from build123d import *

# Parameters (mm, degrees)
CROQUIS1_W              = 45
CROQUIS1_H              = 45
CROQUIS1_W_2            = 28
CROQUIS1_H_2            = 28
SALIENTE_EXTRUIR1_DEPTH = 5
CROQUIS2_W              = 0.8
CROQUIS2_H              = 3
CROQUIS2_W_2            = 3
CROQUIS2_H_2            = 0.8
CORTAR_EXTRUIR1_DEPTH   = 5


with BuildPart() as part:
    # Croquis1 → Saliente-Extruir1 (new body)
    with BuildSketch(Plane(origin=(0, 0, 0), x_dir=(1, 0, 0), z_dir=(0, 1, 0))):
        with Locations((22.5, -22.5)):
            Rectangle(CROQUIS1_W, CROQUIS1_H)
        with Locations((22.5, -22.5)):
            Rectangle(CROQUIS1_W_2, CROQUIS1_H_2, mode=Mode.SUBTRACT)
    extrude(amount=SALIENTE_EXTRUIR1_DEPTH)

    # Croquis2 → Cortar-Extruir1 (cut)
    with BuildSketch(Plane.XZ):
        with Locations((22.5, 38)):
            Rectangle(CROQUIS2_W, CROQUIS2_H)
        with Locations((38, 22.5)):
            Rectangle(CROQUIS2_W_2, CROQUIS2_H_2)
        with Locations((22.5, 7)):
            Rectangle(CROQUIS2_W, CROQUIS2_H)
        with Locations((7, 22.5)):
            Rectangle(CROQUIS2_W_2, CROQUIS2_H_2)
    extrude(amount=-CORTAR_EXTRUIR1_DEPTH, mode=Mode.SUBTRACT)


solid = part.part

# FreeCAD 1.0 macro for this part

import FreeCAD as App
import Part
import Sketcher

V = App.Vector
Q = App.Units.Quantity


def add_polygon(sketch, points):
    """Adds a closed chain of lines whose ends are joined by coincident constraints."""
    first, n = sketch.GeometryCount, len(points)
    for a, b in zip(points, points[1:] + points[:1]):
        sketch.addGeometry(Part.LineSegment(App.Vector(*a, 0), App.Vector(*b, 0)), False)
    for i in range(n):
        sketch.addConstraint(Sketcher.Constraint("Coincident", first + i, 2, first + (i + 1) % n, 1))

doc = App.newDocument("Part")
body = doc.addObject("PartDesign::Body", "Body")

sketch1 = doc.addObject("Sketcher::SketchObject", "Sketch")
body.addObject(sketch1)
sketch1.AttachmentSupport = (doc.XZ_Plane, [""])
sketch1.MapMode = "FlatFace"
add_polygon(sketch1, [(0, 0), (0, 45), (45, 45), (45, 0)])
add_polygon(sketch1, [(36.5, 36.5), (8.5, 36.5), (8.5, 8.5), (36.5, 8.5)])
sketch1.addConstraint([
    Sketcher.Constraint("Vertical", 0),
    Sketcher.Constraint("Horizontal", 1),
    Sketcher.Constraint("Vertical", 2),
    Sketcher.Constraint("Horizontal", 3),
    Sketcher.Constraint("Horizontal", 4),
    Sketcher.Constraint("Vertical", 5),
    Sketcher.Constraint("Horizontal", 6),
    Sketcher.Constraint("Vertical", 7),
    Sketcher.Constraint("Coincident", 3, 2, -1, 1),
    Sketcher.Constraint("Equal", 3, 0),
    Sketcher.Constraint("Equal", 6, 5),
    Sketcher.Constraint("DistanceX", 1, 1, 1, 2, Q("45 mm")),
    Sketcher.Constraint("DistanceX", 4, 2, 4, 1, Q("28 mm")),
    Sketcher.Constraint("DistanceX", -1, 1, 4, 2, Q("8.5 mm")),
    Sketcher.Constraint("DistanceY", -1, 1, 4, 2, Q("36.5 mm")),
])
pad1 = doc.addObject("PartDesign::Pad", "Pad")
body.addObject(pad1)
pad1.Profile = sketch1
pad1.Length = 5
pad1.Reversed = True

sketch2 = doc.addObject("Sketcher::SketchObject", "Sketch001")
body.addObject(sketch2)
sketch2.AttachmentSupport = (doc.XZ_Plane, [""])
sketch2.MapMode = "FlatFace"
add_polygon(sketch2, [(22.1, 39.5), (22.1, 36.5), (22.9, 36.5), (22.9, 39.5)])
add_polygon(sketch2, [(36.5, 22.9), (36.5, 22.1), (39.5, 22.1), (39.5, 22.9)])
add_polygon(sketch2, [(22.1, 8.5), (22.1, 5.5), (22.9, 5.5), (22.9, 8.5)])
add_polygon(sketch2, [(5.5, 22.9), (5.5, 22.1), (8.5, 22.1), (8.5, 22.9)])
sketch2.addConstraint([
    Sketcher.Constraint("Vertical", 0),
    Sketcher.Constraint("Horizontal", 1),
    Sketcher.Constraint("Vertical", 2),
    Sketcher.Constraint("Horizontal", 3),
    Sketcher.Constraint("Vertical", 4),
    Sketcher.Constraint("Horizontal", 5),
    Sketcher.Constraint("Vertical", 6),
    Sketcher.Constraint("Horizontal", 7),
    Sketcher.Constraint("Vertical", 8),
    Sketcher.Constraint("Horizontal", 9),
    Sketcher.Constraint("Vertical", 10),
    Sketcher.Constraint("Horizontal", 11),
    Sketcher.Constraint("Vertical", 12),
    Sketcher.Constraint("Horizontal", 13),
    Sketcher.Constraint("Vertical", 14),
    Sketcher.Constraint("Horizontal", 15),
    Sketcher.Constraint("Horizontal", 5, 2, 12, 2),
    Sketcher.Constraint("Horizontal", 7, 2, 14, 2),
    Sketcher.Constraint("Vertical", 3, 2, 8, 2),
    Sketcher.Constraint("Vertical", 2, 2, 9, 2),
    Sketcher.Constraint("Equal", 7, 13),
    Sketcher.Constraint("Equal", 15, 0),
    Sketcher.Constraint("Equal", 11, 4),
    Sketcher.Constraint("Equal", 2, 8),
    Sketcher.Constraint("DistanceX", 5, 1, 5, 2, Q("3 mm")),
    Sketcher.Constraint("DistanceX", 1, 1, 1, 2, Q("0.8 mm")),
    Sketcher.Constraint("DistanceY", 8, 2, 0, 2, Q("31 mm")),
    Sketcher.Constraint("DistanceX", -1, 1, 0, 2, Q("22.1 mm")),
    Sketcher.Constraint("DistanceY", -1, 1, 0, 2, Q("36.5 mm")),
    Sketcher.Constraint("DistanceX", -1, 1, 4, 2, Q("36.5 mm")),
    Sketcher.Constraint("DistanceY", -1, 1, 4, 2, Q("22.1 mm")),
    Sketcher.Constraint("DistanceX", -1, 1, 12, 2, Q("5.5 mm")),
])
pocket1 = doc.addObject("PartDesign::Pocket", "Pocket")
body.addObject(pocket1)
pocket1.Profile = sketch2
pocket1.Length = 5

doc.recompute()
